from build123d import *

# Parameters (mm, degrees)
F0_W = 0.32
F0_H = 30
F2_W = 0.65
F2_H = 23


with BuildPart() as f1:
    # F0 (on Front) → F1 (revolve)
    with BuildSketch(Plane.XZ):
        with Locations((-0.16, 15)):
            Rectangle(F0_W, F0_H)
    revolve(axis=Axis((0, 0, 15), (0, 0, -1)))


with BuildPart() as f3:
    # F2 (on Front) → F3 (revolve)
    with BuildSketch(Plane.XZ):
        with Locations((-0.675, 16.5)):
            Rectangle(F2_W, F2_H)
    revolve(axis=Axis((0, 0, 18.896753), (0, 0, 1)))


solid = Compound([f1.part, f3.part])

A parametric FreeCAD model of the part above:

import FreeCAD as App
import Part
import Sketcher


def add_polygon(sketch, points):
    """Adds a closed chain of lines whose ends are joined by coincident constraints."""
    first, n = sketch.GeometryCount, len(points)
    for a, b in zip(points, points[1:] + points[:1]):
        sketch.addGeometry(Part.LineSegment(App.Vector(*a, 0), App.Vector(*b, 0)), False)
    for i in range(n):
        sketch.addConstraint(Sketcher.Constraint("Coincident", first + i, 2, first + (i + 1) % n, 1))

doc = App.newDocument("Part")
params = doc.addObject("Spreadsheet::Sheet", "Params")
for row, (alias, value) in enumerate([
    ("sketch1_height", "30 mm"),
    ("sketch1_width", "0.32 mm"),
    ("revolution_angle", "360 deg"),
    ("sketch2_height", "23 mm"),
    ("sketch2_width", "0.65 mm"),
    ("revolution2_angle", "360 deg"),
], start=1):
    params.set(f"A{row}", alias)
    params.set(f"B{row}", "=" + value)
    params.setAlias(f"B{row}", alias)

body = doc.addObject("PartDesign::Body", "Body")

# Sketch on XZ plane
sketch1 = body.newObject("Sketcher::SketchObject", "Sketch")
sketch1.AttachmentSupport = (doc.getObject("XZ_Plane"), [""])
sketch1.MapMode = "FlatFace"
add_polygon(sketch1, [(-0.32, 30), (-0.32, 0), (0, 0), (0, 30)])  # lines 0-3
sketch1.addConstraint(Sketcher.Constraint("Vertical", 0))
sketch1.addConstraint(Sketcher.Constraint("Horizontal", 1))
sketch1.addConstraint(Sketcher.Constraint("Vertical", 2))
sketch1.addConstraint(Sketcher.Constraint("Horizontal", 3))
sketch1.addConstraint(Sketcher.Constraint("Coincident", 1, 2, -1, 1))
sketch1.addConstraint(Sketcher.Constraint("DistanceY", 0, 2, 0, 1, 30.0))
sketch1.addConstraint(Sketcher.Constraint("DistanceX", 1, 1, 1, 2, 0.32))
sketch1.setExpression("Constraints[9]", "Params.sketch1_height")
sketch1.setExpression("Constraints[10]", "Params.sketch1_width")
revolution = body.newObject("PartDesign::Revolution", "Revolution")
revolution.Profile = sketch1
revolution.ReferenceAxis = (sketch1, ["V_Axis"])
revolution.setExpression("Angle", "Params.revolution_angle")
body2 = doc.addObject("PartDesign::Body", "Body001")

# Sketch on XZ plane
sketch2 = body2.newObject("Sketcher::SketchObject", "Sketch001")
sketch2.AttachmentSupport = (doc.getObject("XZ_Plane001"), [""])
sketch2.MapMode = "FlatFace"
add_polygon(sketch2, [(-1, 28), (-1, 5), (-0.35, 5), (-0.35, 28)])  # lines 0-3
sketch2.addConstraint(Sketcher.Constraint("Vertical", 0))
sketch2.addConstraint(Sketcher.Constraint("Horizontal", 1))
sketch2.addConstraint(Sketcher.Constraint("Vertical", 2))
sketch2.addConstraint(Sketcher.Constraint("Horizontal", 3))
sketch2.addConstraint(Sketcher.Constraint("DistanceY", 0, 2, 0, 1, 23.0))
sketch2.addConstraint(Sketcher.Constraint("DistanceX", 0, 2, -1, 1, 1.0))
sketch2.addConstraint(Sketcher.Constraint("DistanceY", -1, 1, 0, 2, 5.0))
sketch2.addConstraint(Sketcher.Constraint("DistanceX", 1, 1, 1, 2, 0.65))
sketch2.setExpression("Constraints[8]", "Params.sketch2_height")
sketch2.setExpression("Constraints[11]", "Params.sketch2_width")
revolution2 = body2.newObject("PartDesign::Revolution", "Revolution001")
revolution2.Profile = sketch2
revolution2.ReferenceAxis = (sketch2, ["V_Axis"])
revolution2.setExpression("Angle", "Params.revolution2_angle")

doc.recompute()
